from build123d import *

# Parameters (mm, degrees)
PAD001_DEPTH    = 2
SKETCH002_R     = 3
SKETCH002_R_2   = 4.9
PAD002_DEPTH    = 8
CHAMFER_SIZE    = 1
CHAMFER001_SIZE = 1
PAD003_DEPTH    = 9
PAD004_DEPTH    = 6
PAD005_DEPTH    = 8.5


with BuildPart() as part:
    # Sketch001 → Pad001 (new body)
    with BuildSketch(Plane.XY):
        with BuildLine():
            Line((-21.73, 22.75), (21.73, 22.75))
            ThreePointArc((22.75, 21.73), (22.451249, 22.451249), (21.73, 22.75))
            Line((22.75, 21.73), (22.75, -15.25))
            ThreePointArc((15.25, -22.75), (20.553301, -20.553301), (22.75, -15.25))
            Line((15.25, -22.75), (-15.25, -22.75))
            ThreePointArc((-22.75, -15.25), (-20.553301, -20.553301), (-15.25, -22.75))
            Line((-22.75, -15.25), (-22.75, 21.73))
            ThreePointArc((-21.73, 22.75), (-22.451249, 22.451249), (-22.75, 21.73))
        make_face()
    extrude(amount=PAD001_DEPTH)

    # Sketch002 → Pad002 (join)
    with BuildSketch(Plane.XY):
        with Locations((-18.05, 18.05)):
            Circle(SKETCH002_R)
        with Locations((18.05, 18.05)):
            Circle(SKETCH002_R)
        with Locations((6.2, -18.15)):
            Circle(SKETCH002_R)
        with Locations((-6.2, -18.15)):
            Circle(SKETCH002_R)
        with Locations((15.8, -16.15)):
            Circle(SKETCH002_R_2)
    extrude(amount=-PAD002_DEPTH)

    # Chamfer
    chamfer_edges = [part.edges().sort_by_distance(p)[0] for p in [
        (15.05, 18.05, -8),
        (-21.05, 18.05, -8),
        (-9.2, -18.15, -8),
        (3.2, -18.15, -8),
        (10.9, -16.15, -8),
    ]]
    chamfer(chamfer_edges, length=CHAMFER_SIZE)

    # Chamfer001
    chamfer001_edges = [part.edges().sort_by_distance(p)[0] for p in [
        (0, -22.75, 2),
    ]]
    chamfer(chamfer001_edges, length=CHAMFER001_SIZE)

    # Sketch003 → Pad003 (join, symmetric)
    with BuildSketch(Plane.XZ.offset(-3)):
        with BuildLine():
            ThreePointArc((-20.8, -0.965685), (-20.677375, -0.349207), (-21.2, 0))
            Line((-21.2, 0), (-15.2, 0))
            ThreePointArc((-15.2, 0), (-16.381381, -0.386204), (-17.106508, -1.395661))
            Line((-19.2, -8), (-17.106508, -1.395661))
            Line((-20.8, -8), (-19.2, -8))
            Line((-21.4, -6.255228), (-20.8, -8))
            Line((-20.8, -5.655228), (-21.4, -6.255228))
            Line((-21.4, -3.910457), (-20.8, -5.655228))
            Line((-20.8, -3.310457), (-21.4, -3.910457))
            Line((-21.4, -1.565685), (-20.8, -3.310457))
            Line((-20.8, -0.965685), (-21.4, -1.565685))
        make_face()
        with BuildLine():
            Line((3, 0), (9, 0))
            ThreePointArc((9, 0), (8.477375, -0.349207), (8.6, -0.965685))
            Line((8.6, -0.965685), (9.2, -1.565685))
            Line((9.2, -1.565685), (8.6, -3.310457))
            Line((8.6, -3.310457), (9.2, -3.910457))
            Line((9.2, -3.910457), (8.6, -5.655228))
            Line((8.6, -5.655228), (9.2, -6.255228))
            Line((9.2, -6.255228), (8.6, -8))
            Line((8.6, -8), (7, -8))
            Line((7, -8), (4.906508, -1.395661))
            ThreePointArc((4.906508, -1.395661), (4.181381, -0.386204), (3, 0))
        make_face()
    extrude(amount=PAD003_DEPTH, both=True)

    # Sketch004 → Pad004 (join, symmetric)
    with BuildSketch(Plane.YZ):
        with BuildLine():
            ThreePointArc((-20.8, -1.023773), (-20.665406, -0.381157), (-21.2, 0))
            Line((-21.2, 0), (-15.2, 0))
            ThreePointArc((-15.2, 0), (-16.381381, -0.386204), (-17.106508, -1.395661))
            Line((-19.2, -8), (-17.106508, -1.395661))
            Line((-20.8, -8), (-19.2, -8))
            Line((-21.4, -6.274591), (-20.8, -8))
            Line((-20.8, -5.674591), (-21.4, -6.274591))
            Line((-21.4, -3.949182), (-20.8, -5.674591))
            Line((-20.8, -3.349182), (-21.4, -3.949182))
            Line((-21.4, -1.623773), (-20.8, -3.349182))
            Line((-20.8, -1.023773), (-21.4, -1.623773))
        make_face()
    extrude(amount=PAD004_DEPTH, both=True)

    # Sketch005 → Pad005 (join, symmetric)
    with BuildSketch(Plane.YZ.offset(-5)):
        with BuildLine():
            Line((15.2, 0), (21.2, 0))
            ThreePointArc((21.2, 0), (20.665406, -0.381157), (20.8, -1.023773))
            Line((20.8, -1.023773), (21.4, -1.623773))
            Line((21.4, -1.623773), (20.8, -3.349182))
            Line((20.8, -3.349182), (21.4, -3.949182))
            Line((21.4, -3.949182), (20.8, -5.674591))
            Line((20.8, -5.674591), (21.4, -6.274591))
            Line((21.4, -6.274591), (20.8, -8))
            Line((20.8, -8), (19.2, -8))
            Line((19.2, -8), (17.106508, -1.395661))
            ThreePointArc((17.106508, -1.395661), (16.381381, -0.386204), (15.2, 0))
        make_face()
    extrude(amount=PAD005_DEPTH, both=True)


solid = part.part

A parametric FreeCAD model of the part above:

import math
import FreeCAD as App
import Part
import Sketcher

V = App.Vector
Q = App.Units.Quantity


def edges_at(feature, points):
    """Names of the edges that pass closest to the given points."""
    edges = feature.Shape.Edges
    near = lambda p: min(range(len(edges)), key=lambda i: edges[i].distToShape(Part.Vertex(*p))[0])
    return sorted({f"Edge{near(p) + 1}" for p in points})

doc = App.newDocument("Part")
body = doc.addObject("PartDesign::Body", "Body")

sketch1 = body.newObject("Sketcher::SketchObject", "Sketch")
sketch1.AttachmentSupport = (doc.getObject("XY_Plane"), [""])
sketch1.MapMode = "FlatFace"
sketch1.addGeometry(Part.LineSegment(V(21.7, 22.8, 0), V(-21.7, 22.8, 0)), False)
sketch1.addGeometry(Part.ArcOfCircle(Part.Circle(V(-21.7, 21.7, 0), V(0, 0, 1), 1), math.radians(90), math.radians(180)), False)
sketch1.addGeometry(Part.LineSegment(V(-22.8, 21.7, 0), V(-22.8, -15.2, 0)), False)
sketch1.addGeometry(Part.ArcOfCircle(Part.Circle(V(-15.3, -15.3, 0), V(0, 0, 1), 7.5), math.radians(180), math.radians(270)), False)
sketch1.addGeometry(Part.LineSegment(V(-15.2, -22.8, 0), V(15.2, -22.8, 0)), False)
sketch1.addGeometry(Part.ArcOfCircle(Part.Circle(V(15.3, -15.3, 0), V(0, 0, 1), 7.5), math.radians(-90), math.radians(0)), False)
sketch1.addGeometry(Part.LineSegment(V(22.8, -15.2, 0), V(22.8, 21.7, 0)), False)
sketch1.addGeometry(Part.ArcOfCircle(Part.Circle(V(21.7, 21.7, 0), V(0, 0, 1), 1), math.radians(0), math.radians(90)), False)
sketch1.addConstraint(Sketcher.Constraint("Tangent", 0, 2, 1, 1))
sketch1.addConstraint(Sketcher.Constraint("Tangent", 1, 2, 2, 1))
sketch1.addConstraint(Sketcher.Constraint("Tangent", 2, 2, 3, 1))
sketch1.addConstraint(Sketcher.Constraint("Tangent", 3, 2, 4, 1))
sketch1.addConstraint(Sketcher.Constraint("Tangent", 4, 2, 5, 1))
sketch1.addConstraint(Sketcher.Constraint("Tangent", 5, 2, 6, 1))
sketch1.addConstraint(Sketcher.Constraint("Tangent", 6, 2, 7, 1))
sketch1.addConstraint(Sketcher.Constraint("Tangent", 7, 2, 0, 1))
sketch1.addConstraint(Sketcher.Constraint("Horizontal", 0))
sketch1.addConstraint(Sketcher.Constraint("Vertical", 2))
sketch1.addConstraint(Sketcher.Constraint("Horizontal", 4))
sketch1.addConstraint(Sketcher.Constraint("Vertical", 6))
sketch1.addConstraint(Sketcher.Constraint("Equal", 3, 5))
sketch1.addConstraint(Sketcher.Constraint("Equal", 1, 7))
sketch1.addConstraint(Sketcher.Constraint("Radius", 3, Q("7.5 mm")))
sketch1.addConstraint(Sketcher.Constraint("Radius", 1, Q("1.02 mm")))
sketch1.addConstraint(Sketcher.Constraint("DistanceX", 4, 1, 4, 2, Q("30.5 mm")))
sketch1.addConstraint(Sketcher.Constraint("DistanceY", 3, 3, 0, 2, Q("38 mm")))
sketch1.addConstraint(Sketcher.Constraint("DistanceX", 1, 3, -1, 1, Q("21.73 mm")))
sketch1.addConstraint(Sketcher.Constraint("DistanceY", -1, 1, 1, 3, Q("21.73 mm")))
pad1 = body.newObject("PartDesign::Pad", "Pad")
pad1.Profile = sketch1
pad1.Length = 2

sketch2 = body.newObject("Sketcher::SketchObject", "Sketch001")
sketch2.AttachmentSupport = (doc.getObject("XY_Plane"), [""])
sketch2.MapMode = "FlatFace"
sketch2.addGeometry(Part.Circle(V(-18.1, 18.1, 0), V(0, 0, 1), 3), False)
sketch2.addGeometry(Part.Circle(V(18.1, 18.1, 0), V(0, 0, 1), 3), False)
sketch2.addGeometry(Part.Circle(V(6.2, -18.1, 0), V(0, 0, 1), 3), False)
sketch2.addGeometry(Part.Circle(V(-6.2, -18.1, 0), V(0, 0, 1), 3), False)
sketch2.addGeometry(Part.Circle(V(15.8, -16.1, 0), V(0, 0, 1), 4.9), False)
sketch2.addConstraint(Sketcher.Constraint("Equal", 0, 1))
sketch2.addConstraint(Sketcher.Constraint("Equal", 1, 2))
sketch2.addConstraint(Sketcher.Constraint("Equal", 2, 3))
sketch2.addConstraint(Sketcher.Constraint("Symmetric", 0, 3, 1, 3, -2))
sketch2.addConstraint(Sketcher.Constraint("Symmetric", 2, 3, 3, 3, -2))
sketch2.addConstraint(Sketcher.Constraint("Diameter", 0, Q("6 mm")))
sketch2.addConstraint(Sketcher.Constraint("Diameter", 4, Q("9.8 mm")))
sketch2.addConstraint(Sketcher.Constraint("DistanceY", 2, 3, 4, 3, Q("2 mm")))
sketch2.addConstraint(Sketcher.Constraint("DistanceX", 3, 3, 4, 3, Q("22 mm")))
sketch2.addConstraint(Sketcher.Constraint("DistanceX", -1, 1, 2, 3, Q("6.2 mm")))
sketch2.addConstraint(Sketcher.Constraint("DistanceX", 0, 3, 1, 3, Q("36.1 mm")))
sketch2.addConstraint(Sketcher.Constraint("DistanceY", 2, 3, 1, 3, Q("36.2 mm")))
sketch2.addConstraint(Sketcher.Constraint("DistanceY", -1, 1, 0, 3, Q("18.05 mm")))
pad2 = body.newObject("PartDesign::Pad", "Pad001")
pad2.Profile = sketch2
pad2.Length = 8
pad2.Reversed = True
doc.recompute()

chamfer = body.newObject("PartDesign::Chamfer", "Chamfer")
chamfer.Base = (pad2, edges_at(pad2, [
    (15.05, 18.05, -8),
    (-21.05, 18.05, -8),
    (-9.2, -18.15, -8),
    (3.2, -18.15, -8),
    (10.9, -16.15, -8),
]))
chamfer.Size = 1
doc.recompute()

chamfer2 = body.newObject("PartDesign::Chamfer", "Chamfer001")
chamfer2.Base = (chamfer, edges_at(chamfer, [(0, -22.75, 2)]))
chamfer2.Size = 1

sketch3 = body.newObject("Sketcher::SketchObject", "Sketch002")
sketch3.AttachmentSupport = (doc.getObject("XZ_Plane"), [""])
sketch3.MapMode = "FlatFace"
sketch3.AttachmentOffset = App.Placement(V(0, 0, -3), App.Rotation())
sketch3.addGeometry(Part.ArcOfCircle(Part.Circle(V(-21.2, -0.6, 0), V(0, 0, 1), 0.6), math.radians(-45), math.radians(90)), False)
sketch3.addGeometry(Part.LineSegment(V(-20.8, -1, 0), V(-21.4, -1.6, 0)), False)
sketch3.addGeometry(Part.LineSegment(V(-21.4, -1.6, 0), V(-20.8, -3.3, 0)), False)
sketch3.addGeometry(Part.LineSegment(V(-20.8, -3.3, 0), V(-21.4, -3.9, 0)), False)
sketch3.addGeometry(Part.LineSegment(V(-21.4, -3.9, 0), V(-20.8, -5.7, 0)), False)
sketch3.addGeometry(Part.LineSegment(V(-20.8, -5.7, 0), V(-21.4, -6.3, 0)), False)
sketch3.addGeometry(Part.LineSegment(V(-21.4, -6.3, 0), V(-20.8, -8, 0)), False)
sketch3.addGeometry(Part.LineSegment(V(-20.8, -8, 0), V(-19.2, -8, 0)), False)
sketch3.addGeometry(Part.LineSegment(V(-19.2, -8, 0), V(-17.1, -1.4, 0)), False)
sketch3.addGeometry(Part.ArcOfCircle(Part.Circle(V(-15.2, -2, 0), V(0, 0, 1), 2), math.radians(90), math.radians(162)), False)
sketch3.addGeometry(Part.LineSegment(V(-15.2, 0, 0), V(-21.2, 0, 0)), False)
sketch3.addGeometry(Part.LineSegment(V(9, 0, 0), V(3, 0, 0)), False)
sketch3.addGeometry(Part.ArcOfCircle(Part.Circle(V(3, -2, 0), V(0, 0, 1), 2), math.radians(18), math.radians(90)), False)
sketch3.addGeometry(Part.LineSegment(V(4.9, -1.4, 0), V(7, -8, 0)), False)
sketch3.addGeometry(Part.LineSegment(V(7, -8, 0), V(8.6, -8, 0)), False)
sketch3.addGeometry(Part.LineSegment(V(8.6, -8, 0), V(9.2, -6.3, 0)), False)
sketch3.addGeometry(Part.LineSegment(V(9.2, -6.3, 0), V(8.6, -5.7, 0)), False)
sketch3.addGeometry(Part.LineSegment(V(8.6, -5.7, 0), V(9.2, -3.9, 0)), False)
sketch3.addGeometry(Part.LineSegment(V(9.2, -3.9, 0), V(8.6, -3.3, 0)), False)
sketch3.addGeometry(Part.LineSegment(V(8.6, -3.3, 0), V(9.2, -1.6, 0)), False)
sketch3.addGeometry(Part.LineSegment(V(9.2, -1.6, 0), V(8.6, -1, 0)), False)
sketch3.addGeometry(Part.ArcOfCircle(Part.Circle(V(9, -0.6, 0), V(0, 0, 1), 0.6), math.radians(90), math.radians(225)), False)
sketch3.addConstraint(Sketcher.Constraint("Tangent", 0, 1, 1, 1))
sketch3.addConstraint(Sketcher.Constraint("Coincident", 1, 2, 2, 1))
sketch3.addConstraint(Sketcher.Constraint("Coincident", 2, 2, 3, 1))
sketch3.addConstraint(Sketcher.Constraint("Coincident", 3, 2, 4, 1))
sketch3.addConstraint(Sketcher.Constraint("Coincident", 4, 2, 5, 1))
sketch3.addConstraint(Sketcher.Constraint("Coincident", 5, 2, 6, 1))
sketch3.addConstraint(Sketcher.Constraint("Coincident", 6, 2, 7, 1))
sketch3.addConstraint(Sketcher.Constraint("Coincident", 7, 2, 8, 1))
sketch3.addConstraint(Sketcher.Constraint("Tangent", 8, 2, 9, 2))
sketch3.addConstraint(Sketcher.Constraint("Tangent", 9, 1, 10, 1))
sketch3.addConstraint(Sketcher.Constraint("Tangent", 10, 2, 0, 2))
sketch3.addConstraint(Sketcher.Constraint("Tangent", 11, 2, 12, 2))
sketch3.addConstraint(Sketcher.Constraint("Tangent", 12, 1, 13, 1))
sketch3.addConstraint(Sketcher.Constraint("Coincident", 13, 2, 14, 1))
sketch3.addConstraint(Sketcher.Constraint("Coincident", 14, 2, 15, 1))
sketch3.addConstraint(Sketcher.Constraint("Coincident", 15, 2, 16, 1))
sketch3.addConstraint(Sketcher.Constraint("Coincident", 16, 2, 17, 1))
sketch3.addConstraint(Sketcher.Constraint("Coincident", 17, 2, 18, 1))
sketch3.addConstraint(Sketcher.Constraint("Coincident", 18, 2, 19, 1))
sketch3.addConstraint(Sketcher.Constraint("Coincident", 19, 2, 20, 1))
sketch3.addConstraint(Sketcher.Constraint("Tangent", 20, 2, 21, 2))
sketch3.addConstraint(Sketcher.Constraint("Tangent", 21, 1, 11, 1))
sketch3.addConstraint(Sketcher.Constraint("Horizontal", 7))
sketch3.addConstraint(Sketcher.Constraint("Horizontal", 10))
sketch3.addConstraint(Sketcher.Constraint("Horizontal", 11))
sketch3.addConstraint(Sketcher.Constraint("Horizontal", 14))
sketch3.addConstraint(Sketcher.Constraint("Equal", 9, 12))
sketch3.addConstraint(Sketcher.Constraint("Equal", 0, 21))
sketch3.addConstraint(Sketcher.Constraint("PointOnObject", 9, 1, -1))
sketch3.addConstraint(Sketcher.Constraint("PointOnObject", 11, 2, -1))
sketch3.addConstraint(Sketcher.Constraint("Parallel", 1, 3))
sketch3.addConstraint(Sketcher.Constraint("Parallel", 2, 4))
sketch3.addConstraint(Sketcher.Constraint("Parallel", 3, 5))
sketch3.addConstraint(Sketcher.Constraint("Parallel", 4, 6))
sketch3.addConstraint(Sketcher.Constraint("Perpendicular", 5, 16))
sketch3.addConstraint(Sketcher.Constraint("Parallel", 15, 17))
sketch3.addConstraint(Sketcher.Constraint("Parallel", 16, 18))
sketch3.addConstraint(Sketcher.Constraint("Parallel", 17, 19))
sketch3.addConstraint(Sketcher.Constraint("Parallel", 18, 20))
sketch3.addConstraint(Sketcher.Constraint("Horizontal", 8, 2, 12, 1))
sketch3.addConstraint(Sketcher.Constraint("Horizontal", 7, 2, 13, 2))
sketch3.addConstraint(Sketcher.Constraint("Horizontal", 5, 2, 15, 2))
sketch3.addConstraint(Sketcher.Constraint("Horizontal", 4, 2, 16, 2))
sketch3.addConstraint(Sketcher.Constraint("Horizontal", 3, 2, 17, 2))
sketch3.addConstraint(Sketcher.Constraint("Horizontal", 2, 2, 18, 2))
sketch3.addConstraint(Sketcher.Constraint("Horizontal", 1, 2, 19, 2))
sketch3.addConstraint(Sketcher.Constraint("Horizontal", 0, 1, 20, 2))
sketch3.addConstraint(Sketcher.Constraint("Vertical", 0, 1, 2, 2))
sketch3.addConstraint(Sketcher.Constraint("Vertical", 1, 2, 3, 2))
sketch3.addConstraint(Sketcher.Constraint("Vertical", 2, 2, 4, 2))
sketch3.addConstraint(Sketcher.Constraint("Vertical", 3, 2, 5, 2))
sketch3.addConstraint(Sketcher.Constraint("Vertical", 4, 2, 6, 2))
sketch3.addConstraint(Sketcher.Constraint("Vertical", 14, 2, 16, 2))
sketch3.addConstraint(Sketcher.Constraint("Equal", 10, 11))
sketch3.addConstraint(Sketcher.Constraint("Radius", 9, Q("2 mm")))
sketch3.addConstraint(Sketcher.Constraint("DistanceX", 10, 2, 10, 1, Q("6 mm")))
sketch3.addConstraint(Sketcher.Constraint("DistanceX", 7, 1, 7, 2, Q("1.6 mm")))
sketch3.addConstraint(Sketcher.Constraint("DistanceX", -1, 1, 12, 3, Q("2.999999 mm")))
sketch3.addConstraint(Sketcher.Constraint("DistanceY", 6, 2, -1, 1, Q("8 mm")))
sketch3.addConstraint(Sketcher.Constraint("DistanceX", -1, 1, 13, 2, Q("7 mm")))
sketch3.addConstraint(Sketcher.Constraint("DistanceY", 1, 2, 0, 3, Q("1 mm")))
sketch3.addConstraint(Sketcher.Constraint("DistanceX", 0, 3, -1, 1, Q("21.2 mm")))
pad3 = body.newObject("PartDesign::Pad", "Pad002")
pad3.Profile = sketch3
pad3.Length = 18
pad3.Midplane = True

sketch4 = body.newObject("Sketcher::SketchObject", "Sketch003")
sketch4.AttachmentSupport = (doc.getObject("YZ_Plane"), [""])
sketch4.MapMode = "FlatFace"
sketch4.addGeometry(Part.ArcOfCircle(Part.Circle(V(-21.2, -0.6, 0), V(0, 0, 1), 0.6), math.radians(-45), math.radians(88)), False)
sketch4.addGeometry(Part.LineSegment(V(-20.8, -1, 0), V(-21.4, -1.6, 0)), False)
sketch4.addGeometry(Part.LineSegment(V(-21.4, -1.6, 0), V(-20.8, -3.3, 0)), False)
sketch4.addGeometry(Part.LineSegment(V(-20.8, -3.3, 0), V(-21.4, -3.9, 0)), False)
sketch4.addGeometry(Part.LineSegment(V(-21.4, -3.9, 0), V(-20.8, -5.7, 0)), False)
sketch4.addGeometry(Part.LineSegment(V(-20.8, -5.7, 0), V(-21.4, -6.3, 0)), False)
sketch4.addGeometry(Part.LineSegment(V(-21.4, -6.3, 0), V(-20.8, -8, 0)), False)
sketch4.addGeometry(Part.LineSegment(V(-20.8, -8, 0), V(-19.2, -8, 0)), False)
sketch4.addGeometry(Part.LineSegment(V(-19.2, -8, 0), V(-17.1, -1.4, 0)), False)
sketch4.addGeometry(Part.ArcOfCircle(Part.Circle(V(-15.2, -2, 0), V(0, 0, 1), 2), math.radians(90), math.radians(162)), False)
sketch4.addGeometry(Part.LineSegment(V(-15.2, 0, 0), V(-21.2, 0, 0)), False)
sketch4.addConstraint(Sketcher.Constraint("Tangent", 0, 1, 1, 1))
sketch4.addConstraint(Sketcher.Constraint("Coincident", 1, 2, 2, 1))
sketch4.addConstraint(Sketcher.Constraint("Coincident", 2, 2, 3, 1))
sketch4.addConstraint(Sketcher.Constraint("Coincident", 3, 2, 4, 1))
sketch4.addConstraint(Sketcher.Constraint("Coincident", 4, 2, 5, 1))
sketch4.addConstraint(Sketcher.Constraint("Coincident", 5, 2, 6, 1))
sketch4.addConstraint(Sketcher.Constraint("Coincident", 6, 2, 7, 1))
sketch4.addConstraint(Sketcher.Constraint("Coincident", 7, 2, 8, 1))
sketch4.addConstraint(Sketcher.Constraint("Tangent", 8, 2, 9, 2))
sketch4.addConstraint(Sketcher.Constraint("Tangent", 9, 1, 10, 1))
sketch4.addConstraint(Sketcher.Constraint("Coincident", 10, 2, 0, 2))
sketch4.addConstraint(Sketcher.Constraint("Horizontal", 7))
sketch4.addConstraint(Sketcher.Constraint("Horizontal", 10))
sketch4.addConstraint(Sketcher.Constraint("PointOnObject", 9, 1, -1))
sketch4.addConstraint(Sketcher.Constraint("Parallel", 1, 3))
sketch4.addConstraint(Sketcher.Constraint("Parallel", 2, 4))
sketch4.addConstraint(Sketcher.Constraint("Parallel", 3, 5))
sketch4.addConstraint(Sketcher.Constraint("Parallel", 4, 6))
sketch4.addConstraint(Sketcher.Constraint("Vertical", 0, 1, 2, 2))
sketch4.addConstraint(Sketcher.Constraint("Vertical", 1, 2, 3, 2))
sketch4.addConstraint(Sketcher.Constraint("Vertical", 2, 2, 4, 2))
sketch4.addConstraint(Sketcher.Constraint("Vertical", 3, 2, 5, 2))
sketch4.addConstraint(Sketcher.Constraint("Vertical", 4, 2, 6, 2))
sketch4.addConstraint(Sketcher.Constraint("Radius", 9, Q("2 mm")))
sketch4.addConstraint(Sketcher.Constraint("Radius", 0, Q("0.6 mm")))
sketch4.addConstraint(Sketcher.Constraint("DistanceX", 10, 2, 10, 1, Q("6 mm")))
sketch4.addConstraint(Sketcher.Constraint("Angle", 1, Q("-135 deg")))
sketch4.addConstraint(Sketcher.Constraint("DistanceX", 7, 1, 7, 2, Q("1.6 mm")))
sketch4.addConstraint(Sketcher.Constraint("DistanceY", 6, 2, -1, 1, Q("8 mm")))
sketch4.addConstraint(Sketcher.Constraint("DistanceX", 9, 3, -1, 1, Q("15.199999 mm")))
sketch4.addConstraint(Sketcher.Constraint("DistanceX", 0, 1, -1, 1, Q("20.8 mm")))
sketch4.addConstraint(Sketcher.Constraint("DistanceX", 1, 2, -1, 1, Q("21.4 mm")))
pad4 = body.newObject("PartDesign::Pad", "Pad003")
pad4.Profile = sketch4
pad4.Length = 12
pad4.Midplane = True

sketch5 = body.newObject("Sketcher::SketchObject", "Sketch004")
sketch5.AttachmentSupport = (doc.getObject("YZ_Plane"), [""])
sketch5.MapMode = "FlatFace"
sketch5.AttachmentOffset = App.Placement(V(0, 0, -5), App.Rotation())
sketch5.addGeometry(Part.LineSegment(V(21.2, 0, 0), V(15.2, 0, 0)), False)
sketch5.addGeometry(Part.ArcOfCircle(Part.Circle(V(15.2, -2, 0), V(0, 0, 1), 2), math.radians(18), math.radians(90)), False)
sketch5.addGeometry(Part.LineSegment(V(17.1, -1.4, 0), V(19.2, -8, 0)), False)
sketch5.addGeometry(Part.LineSegment(V(19.2, -8, 0), V(20.8, -8, 0)), False)
sketch5.addGeometry(Part.LineSegment(V(20.8, -8, 0), V(21.4, -6.3, 0)), False)
sketch5.addGeometry(Part.LineSegment(V(21.4, -6.3, 0), V(20.8, -5.7, 0)), False)
sketch5.addGeometry(Part.LineSegment(V(20.8, -5.7, 0), V(21.4, -3.9, 0)), False)
sketch5.addGeometry(Part.LineSegment(V(21.4, -3.9, 0), V(20.8, -3.3, 0)), False)
sketch5.addGeometry(Part.LineSegment(V(20.8, -3.3, 0), V(21.4, -1.6, 0)), False)
sketch5.addGeometry(Part.LineSegment(V(21.4, -1.6, 0), V(20.8, -1, 0)), False)
sketch5.addGeometry(Part.ArcOfCircle(Part.Circle(V(21.2, -0.6, 0), V(0, 0, 1), 0.6), math.radians(92), math.radians(225)), False)
sketch5.addConstraint(Sketcher.Constraint("Tangent", 0, 2, 1, 2))
sketch5.addConstraint(Sketcher.Constraint("Tangent", 1, 1, 2, 1))
sketch5.addConstraint(Sketcher.Constraint("Coincident", 2, 2, 3, 1))
sketch5.addConstraint(Sketcher.Constraint("Coincident", 3, 2, 4, 1))
sketch5.addConstraint(Sketcher.Constraint("Coincident", 4, 2, 5, 1))
sketch5.addConstraint(Sketcher.Constraint("Coincident", 5, 2, 6, 1))
sketch5.addConstraint(Sketcher.Constraint("Coincident", 6, 2, 7, 1))
sketch5.addConstraint(Sketcher.Constraint("Coincident", 7, 2, 8, 1))
sketch5.addConstraint(Sketcher.Constraint("Coincident", 8, 2, 9, 1))
sketch5.addConstraint(Sketcher.Constraint("Tangent", 9, 2, 10, 2))
sketch5.addConstraint(Sketcher.Constraint("Coincident", 10, 1, 0, 1))
sketch5.addConstraint(Sketcher.Constraint("Horizontal", 0))
sketch5.addConstraint(Sketcher.Constraint("Horizontal", 3))
sketch5.addConstraint(Sketcher.Constraint("PointOnObject", 0, 2, -1))
sketch5.addConstraint(Sketcher.Constraint("Parallel", 4, 6))
sketch5.addConstraint(Sketcher.Constraint("Parallel", 5, 7))
sketch5.addConstraint(Sketcher.Constraint("Parallel", 6, 8))
sketch5.addConstraint(Sketcher.Constraint("Parallel", 7, 9))
sketch5.addConstraint(Sketcher.Constraint("Vertical", 3, 2, 5, 2))
sketch5.addConstraint(Sketcher.Constraint("Vertical", 4, 2, 6, 2))
sketch5.addConstraint(Sketcher.Constraint("Vertical", 5, 2, 7, 2))
sketch5.addConstraint(Sketcher.Constraint("Vertical", 6, 2, 8, 2))
sketch5.addConstraint(Sketcher.Constraint("Vertical", 7, 2, 9, 2))
sketch5.addConstraint(Sketcher.Constraint("Radius", 1, Q("2 mm")))
sketch5.addConstraint(Sketcher.Constraint("Radius", 10, Q("0.6 mm")))
sketch5.addConstraint(Sketcher.Constraint("DistanceX", 0, 2, 0, 1, Q("6 mm")))
sketch5.addConstraint(Sketcher.Constraint("Angle", 5, Q("135 deg")))
sketch5.addConstraint(Sketcher.Constraint("DistanceX", 3, 1, 3, 2, Q("1.6 mm")))
sketch5.addConstraint(Sketcher.Constraint("DistanceY", 2, 2, -1, 1, Q("8 mm")))
sketch5.addConstraint(Sketcher.Constraint("DistanceX", 1, 3, 2, 2, Q("4.000001 mm")))
sketch5.addConstraint(Sketcher.Constraint("DistanceX", -1, 1, 1, 3, Q("15.199999 mm")))
sketch5.addConstraint(Sketcher.Constraint("DistanceX", -1, 1, 4, 2, Q("21.4 mm")))
pad5 = body.newObject("PartDesign::Pad", "Pad004")
pad5.Profile = sketch5
pad5.Length = 17
pad5.Midplane = True

doc.recompute()
